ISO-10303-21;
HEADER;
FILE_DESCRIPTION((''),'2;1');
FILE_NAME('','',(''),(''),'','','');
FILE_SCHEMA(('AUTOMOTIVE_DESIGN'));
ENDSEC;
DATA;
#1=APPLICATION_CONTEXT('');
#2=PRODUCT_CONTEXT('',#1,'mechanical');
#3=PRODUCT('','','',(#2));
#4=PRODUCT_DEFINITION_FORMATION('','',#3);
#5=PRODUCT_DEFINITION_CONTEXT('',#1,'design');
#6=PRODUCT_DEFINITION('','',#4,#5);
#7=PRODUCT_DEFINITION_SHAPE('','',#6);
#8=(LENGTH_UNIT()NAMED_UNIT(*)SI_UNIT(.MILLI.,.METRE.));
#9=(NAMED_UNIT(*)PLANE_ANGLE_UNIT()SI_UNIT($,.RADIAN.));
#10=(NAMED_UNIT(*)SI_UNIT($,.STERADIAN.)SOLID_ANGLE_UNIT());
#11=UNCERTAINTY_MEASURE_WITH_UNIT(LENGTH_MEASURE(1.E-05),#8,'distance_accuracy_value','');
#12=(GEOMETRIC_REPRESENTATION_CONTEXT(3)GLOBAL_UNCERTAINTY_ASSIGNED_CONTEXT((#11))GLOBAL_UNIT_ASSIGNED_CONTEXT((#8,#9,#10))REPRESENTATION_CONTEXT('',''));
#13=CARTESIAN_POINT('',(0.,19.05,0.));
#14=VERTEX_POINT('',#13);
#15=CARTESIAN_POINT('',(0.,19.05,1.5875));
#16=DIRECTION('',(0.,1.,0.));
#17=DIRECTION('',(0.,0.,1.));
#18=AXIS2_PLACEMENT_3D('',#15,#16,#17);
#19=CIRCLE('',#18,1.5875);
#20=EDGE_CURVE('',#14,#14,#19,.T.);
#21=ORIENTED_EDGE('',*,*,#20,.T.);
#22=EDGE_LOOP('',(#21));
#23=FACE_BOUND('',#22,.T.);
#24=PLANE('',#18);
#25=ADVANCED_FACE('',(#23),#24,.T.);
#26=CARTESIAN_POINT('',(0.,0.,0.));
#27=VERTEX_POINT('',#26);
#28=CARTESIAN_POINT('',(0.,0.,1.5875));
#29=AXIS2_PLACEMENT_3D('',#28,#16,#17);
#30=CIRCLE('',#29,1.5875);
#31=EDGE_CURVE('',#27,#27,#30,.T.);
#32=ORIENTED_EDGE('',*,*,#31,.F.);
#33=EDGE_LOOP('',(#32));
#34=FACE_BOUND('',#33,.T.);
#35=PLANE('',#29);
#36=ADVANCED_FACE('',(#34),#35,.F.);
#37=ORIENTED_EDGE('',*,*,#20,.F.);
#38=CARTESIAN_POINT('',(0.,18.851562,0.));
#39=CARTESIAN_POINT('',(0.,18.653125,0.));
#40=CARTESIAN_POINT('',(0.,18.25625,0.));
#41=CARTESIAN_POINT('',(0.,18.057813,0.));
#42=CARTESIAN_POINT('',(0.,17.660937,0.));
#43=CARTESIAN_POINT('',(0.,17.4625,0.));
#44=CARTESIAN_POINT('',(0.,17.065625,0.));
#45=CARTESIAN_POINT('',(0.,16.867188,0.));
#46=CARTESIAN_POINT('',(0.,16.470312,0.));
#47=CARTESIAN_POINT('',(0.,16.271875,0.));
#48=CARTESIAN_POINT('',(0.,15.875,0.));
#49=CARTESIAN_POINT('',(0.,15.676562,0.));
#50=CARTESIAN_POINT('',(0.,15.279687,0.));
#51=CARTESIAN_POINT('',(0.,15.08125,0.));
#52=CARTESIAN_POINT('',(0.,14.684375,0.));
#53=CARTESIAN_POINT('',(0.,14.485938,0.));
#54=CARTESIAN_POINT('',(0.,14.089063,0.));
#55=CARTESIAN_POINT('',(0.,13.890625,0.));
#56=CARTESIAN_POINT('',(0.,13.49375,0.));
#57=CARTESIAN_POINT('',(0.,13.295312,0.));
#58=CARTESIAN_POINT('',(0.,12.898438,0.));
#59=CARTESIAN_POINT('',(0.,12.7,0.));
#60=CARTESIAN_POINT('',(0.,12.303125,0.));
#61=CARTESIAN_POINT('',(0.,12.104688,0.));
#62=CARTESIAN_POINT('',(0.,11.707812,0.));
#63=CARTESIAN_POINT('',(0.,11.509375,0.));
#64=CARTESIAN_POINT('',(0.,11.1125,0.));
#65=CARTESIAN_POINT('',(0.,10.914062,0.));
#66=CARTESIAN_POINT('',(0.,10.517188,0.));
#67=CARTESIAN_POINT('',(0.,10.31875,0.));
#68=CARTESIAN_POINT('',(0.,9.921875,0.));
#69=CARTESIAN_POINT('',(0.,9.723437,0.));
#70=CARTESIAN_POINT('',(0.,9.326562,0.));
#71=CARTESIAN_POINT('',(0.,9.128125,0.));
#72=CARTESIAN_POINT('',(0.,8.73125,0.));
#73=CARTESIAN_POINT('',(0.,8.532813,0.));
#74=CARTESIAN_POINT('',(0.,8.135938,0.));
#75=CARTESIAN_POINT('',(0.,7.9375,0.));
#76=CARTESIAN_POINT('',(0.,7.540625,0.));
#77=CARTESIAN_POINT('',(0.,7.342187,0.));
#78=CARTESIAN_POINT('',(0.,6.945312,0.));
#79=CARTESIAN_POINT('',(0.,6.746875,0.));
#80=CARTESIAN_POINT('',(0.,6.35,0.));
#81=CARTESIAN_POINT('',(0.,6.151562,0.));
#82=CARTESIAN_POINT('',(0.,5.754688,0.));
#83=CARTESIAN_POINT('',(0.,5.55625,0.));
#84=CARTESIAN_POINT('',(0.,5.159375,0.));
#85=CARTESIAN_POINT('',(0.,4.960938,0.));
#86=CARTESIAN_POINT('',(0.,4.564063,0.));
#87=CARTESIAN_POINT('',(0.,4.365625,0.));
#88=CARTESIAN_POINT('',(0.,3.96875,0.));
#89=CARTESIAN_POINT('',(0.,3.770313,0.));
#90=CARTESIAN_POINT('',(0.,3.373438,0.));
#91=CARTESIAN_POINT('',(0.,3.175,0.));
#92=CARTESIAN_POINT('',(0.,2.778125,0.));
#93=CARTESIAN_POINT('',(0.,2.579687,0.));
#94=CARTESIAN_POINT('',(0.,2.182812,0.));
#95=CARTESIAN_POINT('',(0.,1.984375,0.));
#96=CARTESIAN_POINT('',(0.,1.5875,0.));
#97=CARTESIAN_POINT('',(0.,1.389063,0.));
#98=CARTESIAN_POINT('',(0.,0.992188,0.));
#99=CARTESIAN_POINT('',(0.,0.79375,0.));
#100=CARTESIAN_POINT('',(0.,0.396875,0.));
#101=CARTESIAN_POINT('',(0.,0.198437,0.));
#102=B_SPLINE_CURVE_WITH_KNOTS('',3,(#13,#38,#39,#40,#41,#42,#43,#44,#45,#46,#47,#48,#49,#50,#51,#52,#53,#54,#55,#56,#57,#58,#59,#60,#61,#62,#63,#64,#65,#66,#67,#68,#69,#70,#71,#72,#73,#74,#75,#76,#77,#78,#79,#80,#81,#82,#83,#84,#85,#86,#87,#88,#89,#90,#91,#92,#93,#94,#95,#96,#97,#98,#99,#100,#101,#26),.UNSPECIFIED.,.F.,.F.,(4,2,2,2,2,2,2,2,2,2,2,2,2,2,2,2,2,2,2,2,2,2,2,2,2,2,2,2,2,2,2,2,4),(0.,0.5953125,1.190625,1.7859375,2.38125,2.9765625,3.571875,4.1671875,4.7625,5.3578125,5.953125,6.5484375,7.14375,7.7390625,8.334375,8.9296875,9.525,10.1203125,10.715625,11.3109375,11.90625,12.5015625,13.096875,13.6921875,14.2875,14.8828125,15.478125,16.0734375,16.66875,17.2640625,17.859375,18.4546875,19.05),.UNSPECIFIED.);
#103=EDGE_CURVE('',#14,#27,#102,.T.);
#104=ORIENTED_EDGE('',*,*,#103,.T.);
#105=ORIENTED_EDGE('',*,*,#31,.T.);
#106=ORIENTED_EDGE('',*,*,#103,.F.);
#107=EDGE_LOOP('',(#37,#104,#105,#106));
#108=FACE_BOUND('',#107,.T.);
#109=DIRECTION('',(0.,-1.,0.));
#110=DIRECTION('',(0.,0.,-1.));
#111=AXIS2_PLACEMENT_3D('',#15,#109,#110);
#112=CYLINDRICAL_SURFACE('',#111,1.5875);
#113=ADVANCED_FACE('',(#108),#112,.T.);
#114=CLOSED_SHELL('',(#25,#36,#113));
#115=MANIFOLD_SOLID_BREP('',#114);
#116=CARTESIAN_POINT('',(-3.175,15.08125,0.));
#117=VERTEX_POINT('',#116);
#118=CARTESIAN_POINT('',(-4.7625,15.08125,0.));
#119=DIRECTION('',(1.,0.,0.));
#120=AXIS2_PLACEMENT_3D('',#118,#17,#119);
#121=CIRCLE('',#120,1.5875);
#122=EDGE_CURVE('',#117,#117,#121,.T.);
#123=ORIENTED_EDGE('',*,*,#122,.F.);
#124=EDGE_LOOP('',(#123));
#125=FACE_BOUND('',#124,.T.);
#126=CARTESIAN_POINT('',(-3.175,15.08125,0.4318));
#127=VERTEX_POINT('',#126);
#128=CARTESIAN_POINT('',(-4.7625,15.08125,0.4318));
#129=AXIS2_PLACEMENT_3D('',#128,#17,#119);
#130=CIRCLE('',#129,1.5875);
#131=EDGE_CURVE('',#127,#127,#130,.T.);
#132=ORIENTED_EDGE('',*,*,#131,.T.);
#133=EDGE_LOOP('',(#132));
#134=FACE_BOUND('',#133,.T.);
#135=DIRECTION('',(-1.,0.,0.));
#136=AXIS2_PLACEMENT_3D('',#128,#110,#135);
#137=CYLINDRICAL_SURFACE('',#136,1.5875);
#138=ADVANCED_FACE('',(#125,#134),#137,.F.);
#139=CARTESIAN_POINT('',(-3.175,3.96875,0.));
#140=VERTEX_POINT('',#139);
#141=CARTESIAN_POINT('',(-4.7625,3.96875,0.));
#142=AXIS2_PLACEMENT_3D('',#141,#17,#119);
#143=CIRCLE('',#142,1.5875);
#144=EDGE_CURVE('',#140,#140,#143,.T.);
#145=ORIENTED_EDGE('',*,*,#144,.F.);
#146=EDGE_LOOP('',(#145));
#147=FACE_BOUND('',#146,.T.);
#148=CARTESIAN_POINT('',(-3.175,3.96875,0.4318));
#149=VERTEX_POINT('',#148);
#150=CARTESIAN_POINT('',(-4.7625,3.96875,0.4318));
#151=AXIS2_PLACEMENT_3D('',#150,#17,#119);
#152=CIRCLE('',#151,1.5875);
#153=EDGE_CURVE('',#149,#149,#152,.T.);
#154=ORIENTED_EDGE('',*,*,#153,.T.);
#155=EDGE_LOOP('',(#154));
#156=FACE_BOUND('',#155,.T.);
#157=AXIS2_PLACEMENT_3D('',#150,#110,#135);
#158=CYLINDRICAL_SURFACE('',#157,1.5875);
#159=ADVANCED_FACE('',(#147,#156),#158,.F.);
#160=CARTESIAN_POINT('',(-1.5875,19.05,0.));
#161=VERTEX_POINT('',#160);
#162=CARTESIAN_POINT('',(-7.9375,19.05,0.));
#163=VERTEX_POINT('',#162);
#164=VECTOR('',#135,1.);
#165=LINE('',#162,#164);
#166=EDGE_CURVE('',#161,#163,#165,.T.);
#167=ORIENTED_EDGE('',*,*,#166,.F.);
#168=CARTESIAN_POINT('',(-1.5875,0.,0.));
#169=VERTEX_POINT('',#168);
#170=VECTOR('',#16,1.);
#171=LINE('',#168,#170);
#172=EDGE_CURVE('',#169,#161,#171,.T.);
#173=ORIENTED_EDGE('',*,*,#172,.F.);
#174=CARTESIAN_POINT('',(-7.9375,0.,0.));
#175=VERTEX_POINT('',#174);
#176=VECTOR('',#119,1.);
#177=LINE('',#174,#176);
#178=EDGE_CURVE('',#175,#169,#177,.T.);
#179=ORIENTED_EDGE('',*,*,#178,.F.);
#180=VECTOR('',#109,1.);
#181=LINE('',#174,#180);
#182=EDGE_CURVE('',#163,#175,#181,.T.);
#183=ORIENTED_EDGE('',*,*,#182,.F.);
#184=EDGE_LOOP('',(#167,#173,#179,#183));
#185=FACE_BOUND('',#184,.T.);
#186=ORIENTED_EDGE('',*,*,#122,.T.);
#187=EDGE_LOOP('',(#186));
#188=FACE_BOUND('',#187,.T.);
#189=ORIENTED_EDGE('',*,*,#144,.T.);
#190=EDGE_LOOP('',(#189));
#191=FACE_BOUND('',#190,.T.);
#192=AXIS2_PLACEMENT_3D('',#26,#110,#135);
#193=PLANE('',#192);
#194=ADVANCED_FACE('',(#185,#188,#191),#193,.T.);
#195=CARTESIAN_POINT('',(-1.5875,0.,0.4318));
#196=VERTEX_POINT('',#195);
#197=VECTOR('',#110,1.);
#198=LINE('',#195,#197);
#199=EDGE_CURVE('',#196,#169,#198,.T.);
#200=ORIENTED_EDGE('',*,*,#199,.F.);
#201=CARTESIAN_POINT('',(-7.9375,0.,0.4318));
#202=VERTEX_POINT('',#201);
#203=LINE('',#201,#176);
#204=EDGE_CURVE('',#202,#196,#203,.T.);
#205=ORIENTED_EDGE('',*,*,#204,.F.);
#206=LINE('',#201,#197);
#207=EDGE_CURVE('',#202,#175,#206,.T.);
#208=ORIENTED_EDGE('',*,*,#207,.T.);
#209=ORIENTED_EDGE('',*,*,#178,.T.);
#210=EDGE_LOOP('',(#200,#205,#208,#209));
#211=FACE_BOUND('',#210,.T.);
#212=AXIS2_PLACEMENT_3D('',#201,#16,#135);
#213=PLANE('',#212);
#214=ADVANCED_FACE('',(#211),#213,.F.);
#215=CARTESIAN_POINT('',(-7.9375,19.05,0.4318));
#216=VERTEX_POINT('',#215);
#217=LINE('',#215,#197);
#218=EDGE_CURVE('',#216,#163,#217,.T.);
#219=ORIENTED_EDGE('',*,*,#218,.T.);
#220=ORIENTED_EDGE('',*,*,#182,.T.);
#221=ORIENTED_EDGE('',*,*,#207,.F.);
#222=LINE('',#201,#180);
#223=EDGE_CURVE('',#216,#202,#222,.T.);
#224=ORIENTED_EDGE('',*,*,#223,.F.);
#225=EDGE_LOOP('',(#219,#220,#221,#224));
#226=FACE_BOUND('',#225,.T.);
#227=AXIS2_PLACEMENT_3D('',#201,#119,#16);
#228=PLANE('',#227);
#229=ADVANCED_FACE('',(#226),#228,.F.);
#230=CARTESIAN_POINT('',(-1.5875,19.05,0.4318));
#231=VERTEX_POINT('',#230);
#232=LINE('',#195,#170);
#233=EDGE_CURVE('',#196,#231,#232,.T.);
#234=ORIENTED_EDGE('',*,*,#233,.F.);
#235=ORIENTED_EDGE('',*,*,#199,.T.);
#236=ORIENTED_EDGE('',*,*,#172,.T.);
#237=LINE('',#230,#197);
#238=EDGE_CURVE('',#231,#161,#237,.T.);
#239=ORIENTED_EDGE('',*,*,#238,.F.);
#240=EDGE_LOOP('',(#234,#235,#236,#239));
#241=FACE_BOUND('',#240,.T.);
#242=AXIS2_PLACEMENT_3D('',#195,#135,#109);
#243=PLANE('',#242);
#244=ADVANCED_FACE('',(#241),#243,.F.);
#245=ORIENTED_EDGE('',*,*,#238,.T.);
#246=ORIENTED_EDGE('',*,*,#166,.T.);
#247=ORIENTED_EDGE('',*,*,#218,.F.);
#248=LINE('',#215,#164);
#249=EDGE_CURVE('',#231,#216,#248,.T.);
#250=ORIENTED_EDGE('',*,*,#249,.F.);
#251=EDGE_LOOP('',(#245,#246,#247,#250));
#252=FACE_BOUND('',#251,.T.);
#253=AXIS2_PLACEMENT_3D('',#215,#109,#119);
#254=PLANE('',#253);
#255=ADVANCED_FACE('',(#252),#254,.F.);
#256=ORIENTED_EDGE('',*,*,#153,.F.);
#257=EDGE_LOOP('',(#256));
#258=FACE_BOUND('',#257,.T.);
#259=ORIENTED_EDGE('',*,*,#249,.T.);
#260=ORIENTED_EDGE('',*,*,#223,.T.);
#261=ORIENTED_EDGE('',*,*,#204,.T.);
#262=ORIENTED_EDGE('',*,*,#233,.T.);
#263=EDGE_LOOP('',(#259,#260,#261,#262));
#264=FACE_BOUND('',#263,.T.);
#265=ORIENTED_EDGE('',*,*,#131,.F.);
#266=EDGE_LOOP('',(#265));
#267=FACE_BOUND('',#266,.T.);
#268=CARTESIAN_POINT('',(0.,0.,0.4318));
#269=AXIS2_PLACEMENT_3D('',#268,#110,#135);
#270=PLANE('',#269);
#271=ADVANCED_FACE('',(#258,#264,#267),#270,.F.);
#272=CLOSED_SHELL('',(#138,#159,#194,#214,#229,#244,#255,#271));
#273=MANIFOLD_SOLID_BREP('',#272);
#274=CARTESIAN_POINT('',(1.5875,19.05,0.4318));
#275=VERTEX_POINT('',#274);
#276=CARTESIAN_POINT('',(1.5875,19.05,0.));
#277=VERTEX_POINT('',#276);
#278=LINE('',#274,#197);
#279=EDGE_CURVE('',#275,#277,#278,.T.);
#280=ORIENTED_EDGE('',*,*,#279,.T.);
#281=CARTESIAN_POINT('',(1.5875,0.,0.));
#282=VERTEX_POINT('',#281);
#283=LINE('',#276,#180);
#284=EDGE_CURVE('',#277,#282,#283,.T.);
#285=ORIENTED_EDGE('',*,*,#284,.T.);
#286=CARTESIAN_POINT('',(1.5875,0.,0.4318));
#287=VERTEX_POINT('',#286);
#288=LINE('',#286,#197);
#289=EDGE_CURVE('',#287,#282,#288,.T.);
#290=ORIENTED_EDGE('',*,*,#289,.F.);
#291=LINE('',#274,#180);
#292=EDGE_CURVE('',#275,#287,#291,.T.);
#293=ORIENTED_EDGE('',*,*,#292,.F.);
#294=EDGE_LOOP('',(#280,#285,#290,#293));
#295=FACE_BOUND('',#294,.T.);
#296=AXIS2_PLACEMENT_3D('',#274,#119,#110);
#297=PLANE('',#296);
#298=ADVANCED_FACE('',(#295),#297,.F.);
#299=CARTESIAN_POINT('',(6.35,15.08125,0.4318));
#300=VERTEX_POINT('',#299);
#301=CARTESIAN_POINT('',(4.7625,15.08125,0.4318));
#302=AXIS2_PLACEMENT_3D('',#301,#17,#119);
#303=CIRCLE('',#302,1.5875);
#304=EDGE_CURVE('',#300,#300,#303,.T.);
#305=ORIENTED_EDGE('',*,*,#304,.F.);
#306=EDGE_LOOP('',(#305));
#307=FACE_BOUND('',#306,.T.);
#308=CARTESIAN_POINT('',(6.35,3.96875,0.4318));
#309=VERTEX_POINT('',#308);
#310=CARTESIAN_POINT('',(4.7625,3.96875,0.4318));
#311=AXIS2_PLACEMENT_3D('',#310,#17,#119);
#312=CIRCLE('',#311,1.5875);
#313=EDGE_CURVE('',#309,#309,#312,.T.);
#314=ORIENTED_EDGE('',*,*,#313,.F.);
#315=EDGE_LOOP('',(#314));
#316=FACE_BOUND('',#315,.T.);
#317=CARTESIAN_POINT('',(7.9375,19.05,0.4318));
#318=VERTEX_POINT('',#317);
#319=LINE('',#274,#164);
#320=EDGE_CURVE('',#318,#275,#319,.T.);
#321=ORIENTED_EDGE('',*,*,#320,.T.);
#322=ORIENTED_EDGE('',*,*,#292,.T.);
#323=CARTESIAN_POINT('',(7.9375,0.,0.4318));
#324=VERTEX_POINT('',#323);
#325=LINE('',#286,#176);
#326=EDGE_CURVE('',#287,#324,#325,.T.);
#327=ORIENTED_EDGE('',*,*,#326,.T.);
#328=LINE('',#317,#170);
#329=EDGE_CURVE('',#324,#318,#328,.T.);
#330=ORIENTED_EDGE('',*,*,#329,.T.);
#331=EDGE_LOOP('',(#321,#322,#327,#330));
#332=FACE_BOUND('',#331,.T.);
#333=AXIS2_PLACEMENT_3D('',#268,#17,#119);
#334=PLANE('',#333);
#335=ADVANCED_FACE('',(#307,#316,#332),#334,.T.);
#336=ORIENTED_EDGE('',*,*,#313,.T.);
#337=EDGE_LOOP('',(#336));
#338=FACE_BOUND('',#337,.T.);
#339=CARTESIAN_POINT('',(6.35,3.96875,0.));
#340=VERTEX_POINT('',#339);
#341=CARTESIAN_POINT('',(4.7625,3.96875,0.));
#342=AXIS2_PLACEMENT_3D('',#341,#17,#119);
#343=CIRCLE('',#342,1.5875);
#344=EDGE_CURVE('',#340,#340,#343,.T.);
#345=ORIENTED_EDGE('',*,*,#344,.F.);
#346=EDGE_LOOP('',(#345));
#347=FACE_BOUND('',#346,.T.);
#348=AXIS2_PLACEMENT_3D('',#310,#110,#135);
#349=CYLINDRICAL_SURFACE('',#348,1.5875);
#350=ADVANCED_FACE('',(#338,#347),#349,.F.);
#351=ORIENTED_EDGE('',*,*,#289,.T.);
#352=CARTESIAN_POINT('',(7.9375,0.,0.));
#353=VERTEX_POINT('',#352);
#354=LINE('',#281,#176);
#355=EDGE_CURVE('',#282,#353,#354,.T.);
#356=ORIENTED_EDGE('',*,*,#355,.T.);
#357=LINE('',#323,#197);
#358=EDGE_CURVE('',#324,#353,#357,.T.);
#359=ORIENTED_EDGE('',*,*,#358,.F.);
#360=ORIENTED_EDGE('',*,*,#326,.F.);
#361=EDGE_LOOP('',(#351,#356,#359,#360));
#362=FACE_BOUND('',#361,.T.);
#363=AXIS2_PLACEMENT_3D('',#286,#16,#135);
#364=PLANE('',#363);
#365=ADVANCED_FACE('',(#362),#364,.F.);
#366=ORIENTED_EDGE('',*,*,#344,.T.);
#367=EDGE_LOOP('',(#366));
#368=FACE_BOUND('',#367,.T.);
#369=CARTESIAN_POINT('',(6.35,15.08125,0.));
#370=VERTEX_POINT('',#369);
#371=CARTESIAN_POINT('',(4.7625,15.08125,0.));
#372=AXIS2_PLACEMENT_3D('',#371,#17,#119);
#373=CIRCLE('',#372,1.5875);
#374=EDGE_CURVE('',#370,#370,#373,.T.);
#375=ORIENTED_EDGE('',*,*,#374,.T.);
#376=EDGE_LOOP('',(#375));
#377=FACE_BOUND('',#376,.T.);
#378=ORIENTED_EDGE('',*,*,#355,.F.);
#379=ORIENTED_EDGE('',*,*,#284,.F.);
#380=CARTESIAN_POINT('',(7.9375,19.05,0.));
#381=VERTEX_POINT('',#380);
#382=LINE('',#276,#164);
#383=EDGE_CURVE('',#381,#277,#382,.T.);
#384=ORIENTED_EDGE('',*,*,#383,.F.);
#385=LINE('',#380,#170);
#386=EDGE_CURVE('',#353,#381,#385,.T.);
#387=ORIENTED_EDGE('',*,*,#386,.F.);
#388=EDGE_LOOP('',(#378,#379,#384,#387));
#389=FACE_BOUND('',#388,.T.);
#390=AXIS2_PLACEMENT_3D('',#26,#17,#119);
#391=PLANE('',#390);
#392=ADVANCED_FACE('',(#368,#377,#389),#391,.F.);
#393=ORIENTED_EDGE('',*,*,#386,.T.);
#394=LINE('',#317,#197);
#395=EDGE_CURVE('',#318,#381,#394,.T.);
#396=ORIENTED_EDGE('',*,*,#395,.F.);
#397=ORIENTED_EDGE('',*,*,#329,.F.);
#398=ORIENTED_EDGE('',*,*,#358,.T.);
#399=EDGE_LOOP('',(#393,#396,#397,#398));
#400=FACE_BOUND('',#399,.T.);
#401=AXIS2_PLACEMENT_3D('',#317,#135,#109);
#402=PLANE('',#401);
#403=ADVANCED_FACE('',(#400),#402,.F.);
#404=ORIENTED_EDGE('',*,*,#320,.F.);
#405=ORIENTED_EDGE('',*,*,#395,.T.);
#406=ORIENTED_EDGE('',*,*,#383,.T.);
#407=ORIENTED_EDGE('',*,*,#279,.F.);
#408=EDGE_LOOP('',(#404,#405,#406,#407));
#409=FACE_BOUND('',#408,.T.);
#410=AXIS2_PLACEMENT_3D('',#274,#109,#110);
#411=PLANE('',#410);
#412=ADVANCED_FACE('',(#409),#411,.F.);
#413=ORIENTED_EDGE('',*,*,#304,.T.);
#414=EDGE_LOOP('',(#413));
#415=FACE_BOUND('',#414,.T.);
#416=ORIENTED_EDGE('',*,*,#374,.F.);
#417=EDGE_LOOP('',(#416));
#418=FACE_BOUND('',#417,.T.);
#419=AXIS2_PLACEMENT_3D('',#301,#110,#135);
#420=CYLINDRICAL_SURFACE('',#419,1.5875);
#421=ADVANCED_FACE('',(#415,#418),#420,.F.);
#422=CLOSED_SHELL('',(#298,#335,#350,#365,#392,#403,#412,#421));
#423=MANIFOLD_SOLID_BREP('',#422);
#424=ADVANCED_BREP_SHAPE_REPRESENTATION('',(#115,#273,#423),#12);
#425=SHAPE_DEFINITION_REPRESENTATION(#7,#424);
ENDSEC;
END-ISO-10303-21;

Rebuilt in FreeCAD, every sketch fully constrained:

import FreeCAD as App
import Part
import Sketcher

V = App.Vector
Q = App.Units.Quantity

doc = App.newDocument("Part")
body = doc.addObject("PartDesign::Body", "Body")

sketch1 = body.newObject("Sketcher::SketchObject", "Sketch")
sketch1.AttachmentSupport = (doc.getObject("XY_Plane"), [""])
sketch1.MapMode = "FlatFace"
sketch1.addGeometry([
    Part.LineSegment(V(-7.9, 19.1, 0), V(-7.9, 0, 0)),
    Part.LineSegment(V(-7.9, 0, 0), V(-1.6, 0, 0)),
    Part.LineSegment(V(-1.6, 0, 0), V(-1.6, 19.1, 0)),
    Part.LineSegment(V(-1.6, 19.1, 0), V(-7.9, 19.1, 0)),
    Part.Circle(V(-4.8, 4, 0), V(0, 0, 1), 1.6),
    Part.Circle(V(-4.8, 15.1, 0), V(0, 0, 1), 1.6),
], False)
sketch1.addConstraint([
    Sketcher.Constraint("Coincident", 0, 2, 1, 1),
    Sketcher.Constraint("Coincident", 1, 2, 2, 1),
    Sketcher.Constraint("Coincident", 2, 2, 3, 1),
    Sketcher.Constraint("Coincident", 3, 2, 0, 1),
    Sketcher.Constraint("Vertical", 0),
    Sketcher.Constraint("Horizontal", 1),
    Sketcher.Constraint("Vertical", 2),
    Sketcher.Constraint("Horizontal", 3),
    Sketcher.Constraint("Equal", 4, 5),
    Sketcher.Constraint("PointOnObject", 0, 2, -1),
    Sketcher.Constraint("Vertical", 4, 3, 5, 3),
    Sketcher.Constraint("Diameter", 4, Q("0.125 in")),
    Sketcher.Constraint("DistanceX", 1, 1, 1, 2, Q("0.25 in")),
    Sketcher.Constraint("DistanceY", 0, 2, 0, 1, Q("0.75 in")),
    Sketcher.Constraint("DistanceX", 4, 3, -1, 1, Q("0.1875 in")),
    Sketcher.Constraint("DistanceY", -1, 1, 4, 3, Q("0.15625 in")),
    Sketcher.Constraint("DistanceY", -1, 1, 5, 3, Q("0.59375 in")),
    Sketcher.Constraint("DistanceX", 0, 2, -1, 1, Q("0.3125 in")),
])
pad1 = body.newObject("PartDesign::Pad", "Pad")
pad1.Profile = sketch1
pad1.Length = Q("0.017 in")
body2 = doc.addObject("PartDesign::Body", "Body001")

sketch2 = body2.newObject("Sketcher::SketchObject", "Sketch001")
sketch2.AttachmentSupport = (doc.getObject("XY_Plane001"), [""])
sketch2.MapMode = "FlatFace"
sketch2.addGeometry([
    Part.LineSegment(V(1.6, 19.1, 0), V(1.6, 0, 0)),
    Part.LineSegment(V(1.6, 0, 0), V(7.9, 0, 0)),
    Part.LineSegment(V(7.9, 0, 0), V(7.9, 19.1, 0)),
    Part.LineSegment(V(7.9, 19.1, 0), V(1.6, 19.1, 0)),
    Part.Circle(V(4.8, 4, 0), V(0, 0, 1), 1.6),
    Part.Circle(V(4.8, 15.1, 0), V(0, 0, 1), 1.6),
], False)
sketch2.addConstraint([
    Sketcher.Constraint("Coincident", 0, 2, 1, 1),
    Sketcher.Constraint("Coincident", 1, 2, 2, 1),
    Sketcher.Constraint("Coincident", 2, 2, 3, 1),
    Sketcher.Constraint("Coincident", 3, 2, 0, 1),
    Sketcher.Constraint("Vertical", 0),
    Sketcher.Constraint("Horizontal", 1),
    Sketcher.Constraint("Vertical", 2),
    Sketcher.Constraint("Horizontal", 3),
    Sketcher.Constraint("Equal", 4, 5),
    Sketcher.Constraint("PointOnObject", 0, 2, -1),
    Sketcher.Constraint("Vertical", 4, 3, 5, 3),
    Sketcher.Constraint("Diameter", 4, Q("0.125 in")),
    Sketcher.Constraint("DistanceX", 1, 1, 1, 2, Q("0.25 in")),
    Sketcher.Constraint("DistanceY", 0, 2, 0, 1, Q("0.75 in")),
    Sketcher.Constraint("DistanceX", -1, 1, 4, 3, Q("0.1875 in")),
    Sketcher.Constraint("DistanceY", -1, 1, 4, 3, Q("0.15625 in")),
    Sketcher.Constraint("DistanceY", -1, 1, 5, 3, Q("0.59375 in")),
    Sketcher.Constraint("DistanceX", -1, 1, 0, 2, Q("0.0625 in")),
])
pad2 = body2.newObject("PartDesign::Pad", "Pad001")
pad2.Profile = sketch2
pad2.Length = Q("0.017 in")
body3 = doc.addObject("PartDesign::Body", "Body002")

sketch3 = body3.newObject("Sketcher::SketchObject", "Sketch002")
sketch3.AttachmentSupport = (doc.getObject("XZ_Plane002"), [""])
sketch3.MapMode = "FlatFace"
sketch3.addGeometry(Part.Circle(V(0, 1.6, 0), V(0, 0, 1), 1.6), False)
sketch3.addConstraint([
    Sketcher.Constraint("PointOnObject", 0, 3, -2),
    Sketcher.Constraint("Diameter", 0, Q("0.125 in")),
    Sketcher.Constraint("DistanceY", -1, 1, 0, 3, Q("0.0625 in")),
])
pad3 = body3.newObject("PartDesign::Pad", "Pad002")
pad3.Profile = sketch3
pad3.Length = Q("0.75 in")
pad3.Reversed = True

doc.recompute()
